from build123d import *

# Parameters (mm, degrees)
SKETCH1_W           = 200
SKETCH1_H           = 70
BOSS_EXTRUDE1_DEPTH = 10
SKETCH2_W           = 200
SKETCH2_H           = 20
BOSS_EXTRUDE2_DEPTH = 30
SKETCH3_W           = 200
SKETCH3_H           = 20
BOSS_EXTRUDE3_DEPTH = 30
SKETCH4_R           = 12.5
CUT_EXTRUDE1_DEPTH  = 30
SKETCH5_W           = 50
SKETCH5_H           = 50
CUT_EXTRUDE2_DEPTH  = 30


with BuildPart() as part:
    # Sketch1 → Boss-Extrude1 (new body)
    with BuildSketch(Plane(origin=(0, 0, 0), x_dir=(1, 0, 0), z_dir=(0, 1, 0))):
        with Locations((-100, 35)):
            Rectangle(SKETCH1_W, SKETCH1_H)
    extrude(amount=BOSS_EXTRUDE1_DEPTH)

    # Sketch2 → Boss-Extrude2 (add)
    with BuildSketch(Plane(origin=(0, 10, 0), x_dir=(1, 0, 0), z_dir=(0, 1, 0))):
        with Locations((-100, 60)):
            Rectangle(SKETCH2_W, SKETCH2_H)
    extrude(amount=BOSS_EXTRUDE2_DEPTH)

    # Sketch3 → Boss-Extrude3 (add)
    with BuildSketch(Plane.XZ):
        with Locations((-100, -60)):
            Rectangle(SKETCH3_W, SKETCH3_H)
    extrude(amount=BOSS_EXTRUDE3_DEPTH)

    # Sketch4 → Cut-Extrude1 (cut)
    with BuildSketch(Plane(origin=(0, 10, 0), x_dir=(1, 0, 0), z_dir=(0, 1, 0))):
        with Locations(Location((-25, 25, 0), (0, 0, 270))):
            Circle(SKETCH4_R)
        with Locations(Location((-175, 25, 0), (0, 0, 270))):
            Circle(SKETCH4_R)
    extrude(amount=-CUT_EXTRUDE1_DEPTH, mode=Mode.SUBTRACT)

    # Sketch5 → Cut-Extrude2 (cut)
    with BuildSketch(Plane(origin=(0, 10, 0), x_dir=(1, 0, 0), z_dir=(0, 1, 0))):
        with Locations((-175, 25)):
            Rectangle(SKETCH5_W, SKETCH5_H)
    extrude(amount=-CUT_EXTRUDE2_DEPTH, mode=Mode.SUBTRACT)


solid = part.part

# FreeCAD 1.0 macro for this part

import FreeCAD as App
import Part
import Sketcher
from FreeCAD import Vector
Q = App.Units.Quantity

doc = App.newDocument("Part")
body = doc.addObject("PartDesign::Body", "Body")

# Sketch on XZ plane
sketch1 = doc.addObject("Sketcher::SketchObject", "Sketch")
body.addObject(sketch1)
sketch1.AttachmentSupport = (doc.XZ_Plane, [""])
sketch1.MapMode = "FlatFace"
sketch1.addGeometry([
    Part.LineSegment(Vector(-200, -70, 0), Vector(-200, 0, 0)),
    Part.LineSegment(Vector(-200, 0, 0), Vector(0, 0, 0)),
    Part.LineSegment(Vector(0, 0, 0), Vector(0, -70, 0)),
    Part.LineSegment(Vector(0, -70, 0), Vector(-200, -70, 0)),
], False)
sketch1.addConstraint([
    Sketcher.Constraint("Coincident", 0, 2, 1, 1),
    Sketcher.Constraint("Coincident", 1, 2, 2, 1),
    Sketcher.Constraint("Coincident", 2, 2, 3, 1),
    Sketcher.Constraint("Coincident", 3, 2, 0, 1),
    Sketcher.Constraint("Vertical", 0),
    Sketcher.Constraint("Horizontal", 1),
    Sketcher.Constraint("Vertical", 2),
    Sketcher.Constraint("Horizontal", 3),
    Sketcher.Constraint("Coincident", 1, 2, -1, 1),
    Sketcher.Constraint("DistanceX", 1, 1, 1, 2, Q("200 mm")),
    Sketcher.Constraint("DistanceY", 0, 1, 0, 2, Q("70 mm")),
])
pad1 = doc.addObject("PartDesign::Pad", "Pad")
body.addObject(pad1)
pad1.Profile = sketch1
pad1.Length = 10
pad1.Reversed = True

# Sketch on XZ plane
sketch2 = doc.addObject("Sketcher::SketchObject", "Sketch001")
body.addObject(sketch2)
sketch2.AttachmentSupport = (doc.XZ_Plane, [""])
sketch2.MapMode = "FlatFace"
sketch2.AttachmentOffset = App.Placement(Vector(0, 0, -10), App.Rotation())
sketch2.addGeometry([
    Part.LineSegment(Vector(-200, -70, 0), Vector(-200, -50, 0)),
    Part.LineSegment(Vector(-200, -50, 0), Vector(0, -50, 0)),
    Part.LineSegment(Vector(0, -50, 0), Vector(0, -70, 0)),
    Part.LineSegment(Vector(0, -70, 0), Vector(-200, -70, 0)),
], False)
sketch2.addConstraint([
    Sketcher.Constraint("Coincident", 0, 2, 1, 1),
    Sketcher.Constraint("Coincident", 1, 2, 2, 1),
    Sketcher.Constraint("Coincident", 2, 2, 3, 1),
    Sketcher.Constraint("Coincident", 3, 2, 0, 1),
    Sketcher.Constraint("Vertical", 0),
    Sketcher.Constraint("Horizontal", 1),
    Sketcher.Constraint("Vertical", 2),
    Sketcher.Constraint("Horizontal", 3),
    Sketcher.Constraint("PointOnObject", 1, 2, -2),
    Sketcher.Constraint("DistanceX", 1, 1, 1, 2, Q("200 mm")),
    Sketcher.Constraint("DistanceY", 0, 1, 0, 2, Q("20 mm")),
    Sketcher.Constraint("DistanceY", 0, 2, -1, 1, Q("50 mm")),
])
pad2 = doc.addObject("PartDesign::Pad", "Pad001")
body.addObject(pad2)
pad2.Profile = sketch2
pad2.Length = 30
pad2.Reversed = True

# Sketch on XZ plane
sketch3 = doc.addObject("Sketcher::SketchObject", "Sketch002")
body.addObject(sketch3)
sketch3.AttachmentSupport = (doc.XZ_Plane, [""])
sketch3.MapMode = "FlatFace"
sketch3.addGeometry([
    Part.LineSegment(Vector(-200, -50, 0), Vector(-200, -70, 0)),
    Part.LineSegment(Vector(-200, -70, 0), Vector(0, -70, 0)),
    Part.LineSegment(Vector(0, -70, 0), Vector(0, -50, 0)),
    Part.LineSegment(Vector(0, -50, 0), Vector(-200, -50, 0)),
], False)
sketch3.addConstraint([
    Sketcher.Constraint("Coincident", 0, 2, 1, 1),
    Sketcher.Constraint("Coincident", 1, 2, 2, 1),
    Sketcher.Constraint("Coincident", 2, 2, 3, 1),
    Sketcher.Constraint("Coincident", 3, 2, 0, 1),
    Sketcher.Constraint("Vertical", 0),
    Sketcher.Constraint("Horizontal", 1),
    Sketcher.Constraint("Vertical", 2),
    Sketcher.Constraint("Horizontal", 3),
    Sketcher.Constraint("PointOnObject", 1, 2, -2),
    Sketcher.Constraint("DistanceX", 1, 1, 1, 2, Q("200 mm")),
    Sketcher.Constraint("DistanceY", 0, 2, 0, 1, Q("20 mm")),
    Sketcher.Constraint("DistanceY", 0, 2, -1, 1, Q("70 mm")),
])
pad3 = doc.addObject("PartDesign::Pad", "Pad002")
body.addObject(pad3)
pad3.Profile = sketch3
pad3.Length = 30

# Sketch on XZ plane
sketch4 = doc.addObject("Sketcher::SketchObject", "Sketch003")
body.addObject(sketch4)
sketch4.AttachmentSupport = (doc.XZ_Plane, [""])
sketch4.MapMode = "FlatFace"
sketch4.AttachmentOffset = App.Placement(Vector(0, 0, -10), App.Rotation())
sketch4.addGeometry([
    Part.Circle(Vector(-25, -25, 0), Vector(0, 0, 1), 12.5),
    Part.Circle(Vector(-175, -25, 0), Vector(0, 0, 1), 12.5),
], False)
sketch4.addConstraint([
    Sketcher.Constraint("Equal", 0, 1),
    Sketcher.Constraint("Horizontal", 0, 3, 1, 3),
    Sketcher.Constraint("Diameter", 0, Q("25 mm")),
    Sketcher.Constraint("DistanceX", 0, 3, -1, 1, Q("25 mm")),
    Sketcher.Constraint("DistanceY", 0, 3, -1, 1, Q("25 mm")),
    Sketcher.Constraint("DistanceX", 1, 3, -1, 1, Q("175 mm")),
])
pocket1 = doc.addObject("PartDesign::Pocket", "Pocket")
body.addObject(pocket1)
pocket1.Profile = sketch4
pocket1.Length = 30
pocket1.Reversed = True

# Sketch on XZ plane
sketch5 = doc.addObject("Sketcher::SketchObject", "Sketch004")
body.addObject(sketch5)
sketch5.AttachmentSupport = (doc.XZ_Plane, [""])
sketch5.MapMode = "FlatFace"
sketch5.AttachmentOffset = App.Placement(Vector(0, 0, -10), App.Rotation())
sketch5.addGeometry([
    Part.LineSegment(Vector(-200, -50, 0), Vector(-200, 0, 0)),
    Part.LineSegment(Vector(-200, 0, 0), Vector(-150, 0, 0)),
    Part.LineSegment(Vector(-150, 0, 0), Vector(-150, -50, 0)),
    Part.LineSegment(Vector(-150, -50, 0), Vector(-200, -50, 0)),
], False)
sketch5.addConstraint([
    Sketcher.Constraint("Coincident", 0, 2, 1, 1),
    Sketcher.Constraint("Coincident", 1, 2, 2, 1),
    Sketcher.Constraint("Coincident", 2, 2, 3, 1),
    Sketcher.Constraint("Coincident", 3, 2, 0, 1),
    Sketcher.Constraint("Vertical", 0),
    Sketcher.Constraint("Horizontal", 1),
    Sketcher.Constraint("Vertical", 2),
    Sketcher.Constraint("Horizontal", 3),
    Sketcher.Constraint("PointOnObject", 0, 2, -1),
    Sketcher.Constraint("Equal", 3, 0),
    Sketcher.Constraint("DistanceX", 1, 1, 1, 2, Q("50 mm")),
    Sketcher.Constraint("DistanceX", 0, 2, -1, 1, Q("200 mm")),
])
pocket2 = doc.addObject("PartDesign::Pocket", "Pocket001")
body.addObject(pocket2)
pocket2.Profile = sketch5
pocket2.Length = 30
pocket2.Reversed = True

doc.recompute()
